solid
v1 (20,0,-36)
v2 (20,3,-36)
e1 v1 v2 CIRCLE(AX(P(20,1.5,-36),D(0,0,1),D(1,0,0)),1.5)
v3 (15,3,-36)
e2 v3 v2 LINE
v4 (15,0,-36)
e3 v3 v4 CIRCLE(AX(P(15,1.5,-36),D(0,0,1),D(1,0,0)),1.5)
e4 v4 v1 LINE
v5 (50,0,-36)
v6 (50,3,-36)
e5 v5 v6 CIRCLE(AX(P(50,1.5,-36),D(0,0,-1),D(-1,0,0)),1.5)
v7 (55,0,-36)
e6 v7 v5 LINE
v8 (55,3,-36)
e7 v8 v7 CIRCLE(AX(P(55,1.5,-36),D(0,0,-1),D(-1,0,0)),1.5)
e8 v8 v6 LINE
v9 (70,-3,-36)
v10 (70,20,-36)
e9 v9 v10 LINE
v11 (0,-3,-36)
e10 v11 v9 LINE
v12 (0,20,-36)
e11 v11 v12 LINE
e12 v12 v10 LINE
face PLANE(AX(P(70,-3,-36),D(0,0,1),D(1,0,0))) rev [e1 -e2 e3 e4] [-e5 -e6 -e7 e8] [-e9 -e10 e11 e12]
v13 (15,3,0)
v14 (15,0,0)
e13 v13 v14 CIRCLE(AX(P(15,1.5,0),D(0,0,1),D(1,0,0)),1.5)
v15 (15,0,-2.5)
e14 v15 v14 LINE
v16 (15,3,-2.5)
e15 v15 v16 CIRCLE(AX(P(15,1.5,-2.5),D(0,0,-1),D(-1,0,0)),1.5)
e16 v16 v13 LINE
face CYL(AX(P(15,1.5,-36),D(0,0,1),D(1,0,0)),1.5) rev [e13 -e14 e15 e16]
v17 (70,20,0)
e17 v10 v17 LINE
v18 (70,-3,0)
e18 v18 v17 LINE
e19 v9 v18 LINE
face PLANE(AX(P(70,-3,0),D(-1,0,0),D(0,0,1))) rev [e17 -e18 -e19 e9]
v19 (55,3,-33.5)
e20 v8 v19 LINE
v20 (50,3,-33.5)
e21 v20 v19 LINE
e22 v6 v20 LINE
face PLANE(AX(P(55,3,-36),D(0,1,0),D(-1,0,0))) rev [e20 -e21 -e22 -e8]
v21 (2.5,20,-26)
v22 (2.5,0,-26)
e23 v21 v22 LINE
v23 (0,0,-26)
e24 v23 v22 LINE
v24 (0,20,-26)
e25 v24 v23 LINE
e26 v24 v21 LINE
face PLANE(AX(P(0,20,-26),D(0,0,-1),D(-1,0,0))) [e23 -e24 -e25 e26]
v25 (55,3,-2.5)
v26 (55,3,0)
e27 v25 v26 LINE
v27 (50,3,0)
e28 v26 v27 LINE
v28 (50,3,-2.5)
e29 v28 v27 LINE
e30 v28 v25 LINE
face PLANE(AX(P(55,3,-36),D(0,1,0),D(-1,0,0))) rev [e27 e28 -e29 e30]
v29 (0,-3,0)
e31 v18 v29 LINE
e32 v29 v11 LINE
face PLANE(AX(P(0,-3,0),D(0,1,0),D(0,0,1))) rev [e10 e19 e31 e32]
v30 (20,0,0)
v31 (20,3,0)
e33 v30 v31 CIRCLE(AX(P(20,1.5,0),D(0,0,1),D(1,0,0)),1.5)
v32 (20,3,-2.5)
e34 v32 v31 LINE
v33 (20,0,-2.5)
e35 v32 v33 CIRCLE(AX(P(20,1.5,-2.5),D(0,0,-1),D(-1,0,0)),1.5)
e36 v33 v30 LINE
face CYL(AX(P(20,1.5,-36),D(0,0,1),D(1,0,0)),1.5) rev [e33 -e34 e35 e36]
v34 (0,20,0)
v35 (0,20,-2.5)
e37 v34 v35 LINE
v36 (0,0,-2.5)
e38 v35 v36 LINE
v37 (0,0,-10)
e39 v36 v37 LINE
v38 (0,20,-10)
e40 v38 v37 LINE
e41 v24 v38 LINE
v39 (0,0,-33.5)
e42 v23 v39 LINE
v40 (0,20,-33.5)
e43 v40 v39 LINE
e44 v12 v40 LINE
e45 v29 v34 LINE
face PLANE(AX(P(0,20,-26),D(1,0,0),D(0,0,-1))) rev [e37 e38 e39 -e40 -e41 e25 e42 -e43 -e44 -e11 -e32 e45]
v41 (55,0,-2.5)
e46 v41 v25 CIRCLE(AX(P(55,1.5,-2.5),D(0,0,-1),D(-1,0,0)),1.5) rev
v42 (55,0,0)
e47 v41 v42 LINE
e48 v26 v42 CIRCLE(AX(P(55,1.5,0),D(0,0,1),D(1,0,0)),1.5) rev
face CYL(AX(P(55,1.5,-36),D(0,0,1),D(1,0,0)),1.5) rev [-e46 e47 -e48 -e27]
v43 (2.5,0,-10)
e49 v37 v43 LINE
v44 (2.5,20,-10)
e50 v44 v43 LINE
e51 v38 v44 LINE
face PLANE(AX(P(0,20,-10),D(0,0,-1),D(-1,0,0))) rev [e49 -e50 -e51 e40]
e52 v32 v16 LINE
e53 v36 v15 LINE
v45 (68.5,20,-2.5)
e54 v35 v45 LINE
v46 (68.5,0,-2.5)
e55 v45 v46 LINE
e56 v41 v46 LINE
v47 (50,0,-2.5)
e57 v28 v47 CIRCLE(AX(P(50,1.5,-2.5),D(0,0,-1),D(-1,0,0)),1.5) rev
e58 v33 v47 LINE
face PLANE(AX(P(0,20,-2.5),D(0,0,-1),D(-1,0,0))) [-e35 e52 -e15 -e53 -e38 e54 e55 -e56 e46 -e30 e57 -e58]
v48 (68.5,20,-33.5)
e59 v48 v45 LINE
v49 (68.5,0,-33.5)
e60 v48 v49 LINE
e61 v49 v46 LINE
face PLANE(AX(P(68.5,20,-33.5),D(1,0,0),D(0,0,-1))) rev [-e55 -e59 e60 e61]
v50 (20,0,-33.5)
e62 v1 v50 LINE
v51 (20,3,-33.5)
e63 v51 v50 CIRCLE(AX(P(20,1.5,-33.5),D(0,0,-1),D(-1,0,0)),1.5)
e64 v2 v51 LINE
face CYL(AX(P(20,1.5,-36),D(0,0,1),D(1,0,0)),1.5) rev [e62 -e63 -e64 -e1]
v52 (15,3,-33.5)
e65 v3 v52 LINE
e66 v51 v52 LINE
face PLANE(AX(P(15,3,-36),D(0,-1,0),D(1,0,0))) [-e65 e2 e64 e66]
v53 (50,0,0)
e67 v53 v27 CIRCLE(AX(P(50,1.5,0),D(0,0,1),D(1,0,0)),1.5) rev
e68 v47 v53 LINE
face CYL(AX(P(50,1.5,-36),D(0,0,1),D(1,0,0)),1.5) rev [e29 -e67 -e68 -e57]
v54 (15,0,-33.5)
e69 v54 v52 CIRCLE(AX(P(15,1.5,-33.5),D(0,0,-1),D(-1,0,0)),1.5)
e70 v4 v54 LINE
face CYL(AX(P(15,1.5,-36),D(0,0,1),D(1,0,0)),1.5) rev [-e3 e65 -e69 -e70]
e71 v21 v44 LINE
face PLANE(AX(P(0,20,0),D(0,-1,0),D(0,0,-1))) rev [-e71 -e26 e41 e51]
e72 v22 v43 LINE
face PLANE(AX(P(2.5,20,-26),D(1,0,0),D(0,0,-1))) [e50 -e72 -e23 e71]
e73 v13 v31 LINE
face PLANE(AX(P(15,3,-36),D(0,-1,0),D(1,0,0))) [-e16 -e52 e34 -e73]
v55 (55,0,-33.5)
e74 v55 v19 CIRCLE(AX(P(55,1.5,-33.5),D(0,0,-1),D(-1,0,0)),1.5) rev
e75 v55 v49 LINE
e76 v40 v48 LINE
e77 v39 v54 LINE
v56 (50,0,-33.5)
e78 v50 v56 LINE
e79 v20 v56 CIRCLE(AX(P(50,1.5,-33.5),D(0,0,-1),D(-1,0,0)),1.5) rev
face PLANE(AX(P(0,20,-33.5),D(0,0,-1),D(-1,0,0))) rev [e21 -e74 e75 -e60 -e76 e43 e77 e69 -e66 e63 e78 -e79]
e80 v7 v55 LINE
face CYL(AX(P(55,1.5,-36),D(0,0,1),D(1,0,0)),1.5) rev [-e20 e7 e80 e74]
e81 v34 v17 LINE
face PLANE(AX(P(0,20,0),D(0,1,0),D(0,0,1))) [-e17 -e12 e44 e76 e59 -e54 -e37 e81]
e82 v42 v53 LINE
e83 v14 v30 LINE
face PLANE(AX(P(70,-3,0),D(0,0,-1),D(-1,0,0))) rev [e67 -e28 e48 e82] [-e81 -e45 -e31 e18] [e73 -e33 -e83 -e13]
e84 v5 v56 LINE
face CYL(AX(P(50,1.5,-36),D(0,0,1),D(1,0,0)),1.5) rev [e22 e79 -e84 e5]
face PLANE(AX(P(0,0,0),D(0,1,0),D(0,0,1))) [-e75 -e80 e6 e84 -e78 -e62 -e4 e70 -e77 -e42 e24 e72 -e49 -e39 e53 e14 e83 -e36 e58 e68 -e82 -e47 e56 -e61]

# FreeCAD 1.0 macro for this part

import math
import FreeCAD as App
import Part
import Sketcher

V = App.Vector


def add_polygon(sketch, points):
    """Adds a closed chain of lines whose ends are joined by coincident constraints."""
    first, n = sketch.GeometryCount, len(points)
    for a, b in zip(points, points[1:] + points[:1]):
        sketch.addGeometry(Part.LineSegment(App.Vector(*a, 0), App.Vector(*b, 0)), False)
    for i in range(n):
        sketch.addConstraint(Sketcher.Constraint("Coincident", first + i, 2, first + (i + 1) % n, 1))

doc = App.newDocument("Part")
body = doc.addObject("PartDesign::Body", "Body")
body.AllowCompound = True

# Sketch on XZ plane
sketch1 = body.newObject("Sketcher::SketchObject", "Sketch")
sketch1.AttachmentSupport = (doc.getObject("XZ_Plane"), [""])
sketch1.MapMode = "FlatFace"
add_polygon(sketch1, [(70, -36), (0, -36), (0, -33.5), (68.5, -33.5), (68.5, -2.5), (0, -2.5), (0, 0), (70, 0)])  # lines 0-7
add_polygon(sketch1, [(0, -26), (0, -10), (2.5, -10), (2.5, -26)])  # lines 8-11
sketch1.addConstraint([
    Sketcher.Constraint("Horizontal", 0),
    Sketcher.Constraint("Vertical", 1),
    Sketcher.Constraint("Horizontal", 2),
    Sketcher.Constraint("Vertical", 3),
    Sketcher.Constraint("Horizontal", 4),
    Sketcher.Constraint("Vertical", 5),
    Sketcher.Constraint("Horizontal", 6),
    Sketcher.Constraint("Vertical", 7),
    Sketcher.Constraint("Vertical", 8),
    Sketcher.Constraint("Horizontal", 9),
    Sketcher.Constraint("Vertical", 10),
    Sketcher.Constraint("Horizontal", 11),
    Sketcher.Constraint("Coincident", 5, 2, -1, 1),
    Sketcher.Constraint("PointOnObject", 0, 2, -2),
    Sketcher.Constraint("PointOnObject", 8, 2, -2),
    Sketcher.Constraint("Equal", 11, 1),
    Sketcher.Constraint("Equal", 1, 5),
    Sketcher.Constraint("DistanceX", 0, 2, 0, 1, 70.0),
    Sketcher.Constraint("DistanceY", 3, 1, 3, 2, 31.0),
    Sketcher.Constraint("DistanceY", 7, 2, 7, 1, 36.0),
    Sketcher.Constraint("DistanceY", 8, 1, 8, 2, 16.0),
    Sketcher.Constraint("DistanceX", 2, 1, 2, 2, 68.5),
    Sketcher.Constraint("DistanceY", 8, 2, -1, 1, 10.0),
])
pad1 = body.newObject("PartDesign::Pad", "Pad")
pad1.Profile = sketch1
pad1.Length = 20
pad1.Reversed = True

# Sketch on XZ plane
sketch2 = body.newObject("Sketcher::SketchObject", "Sketch001")
sketch2.AttachmentSupport = (doc.getObject("XZ_Plane"), [""])
sketch2.MapMode = "FlatFace"
add_polygon(sketch2, [(0, 0), (0, -36), (70, -36), (70, 0)])  # lines 0-3
sketch2.addConstraint([
    Sketcher.Constraint("Vertical", 0),
    Sketcher.Constraint("Horizontal", 1),
    Sketcher.Constraint("Vertical", 2),
    Sketcher.Constraint("Horizontal", 3),
    Sketcher.Constraint("Coincident", 3, 2, -1, 1),
    Sketcher.Constraint("DistanceX", 1, 1, 1, 2, 70.0),
    Sketcher.Constraint("DistanceY", 0, 2, 0, 1, 36.0),
])
pad2 = body.newObject("PartDesign::Pad", "Pad001")
pad2.Profile = sketch2
pad2.Length = 3

# Sketch on XY plane
sketch3 = body.newObject("Sketcher::SketchObject", "Sketch002")
sketch3.AttachmentSupport = (doc.getObject("XY_Plane"), [""])
sketch3.MapMode = "FlatFace"
sketch3.addGeometry([
    Part.LineSegment(V(20, 3, 0), V(15, 3, 0)),  # 0
    Part.ArcOfCircle(Part.Circle(V(15, 1.5, 0), V(0, 0, 1), 1.5), math.radians(90), math.radians(270)),  # 1
    Part.LineSegment(V(15, 0, 0), V(20, 0, 0)),  # 2
    Part.ArcOfCircle(Part.Circle(V(20, 1.5, 0), V(0, 0, 1), 1.5), math.radians(-90), math.radians(90)),  # 3
    Part.LineSegment(V(55, 3, 0), V(50, 3, 0)),  # 4
    Part.ArcOfCircle(Part.Circle(V(50, 1.5, 0), V(0, 0, 1), 1.5), math.radians(90), math.radians(270)),  # 5
    Part.LineSegment(V(50, 0, 0), V(55, 0, 0)),  # 6
    Part.ArcOfCircle(Part.Circle(V(55, 1.5, 0), V(0, 0, 1), 1.5), math.radians(-90), math.radians(90)),  # 7
], False)
sketch3.addConstraint([
    Sketcher.Constraint("Tangent", 0, 2, 1, 1),
    Sketcher.Constraint("Tangent", 1, 2, 2, 1),
    Sketcher.Constraint("Tangent", 2, 2, 3, 1),
    Sketcher.Constraint("Tangent", 3, 2, 0, 1),
    Sketcher.Constraint("Tangent", 4, 2, 5, 1),
    Sketcher.Constraint("Tangent", 5, 2, 6, 1),
    Sketcher.Constraint("Tangent", 6, 2, 7, 1),
    Sketcher.Constraint("Tangent", 7, 2, 4, 1),
    Sketcher.Constraint("Horizontal", 0),
    Sketcher.Constraint("Horizontal", 2),
    Sketcher.Constraint("Horizontal", 4),
    Sketcher.Constraint("Horizontal", 6),
    Sketcher.Constraint("Equal", 3, 5),
    Sketcher.Constraint("PointOnObject", 1, 2, -1),
    Sketcher.Constraint("PointOnObject", 5, 2, -1),
    Sketcher.Constraint("Equal", 2, 4),
    Sketcher.Constraint("Radius", 1, 1.5),
    Sketcher.Constraint("DistanceX", 0, 2, 0, 1, 5.0),
    Sketcher.Constraint("DistanceX", -1, 1, 1, 3, 15.0),
    Sketcher.Constraint("DistanceX", -1, 1, 5, 3, 50.0),
])
pocket1 = body.newObject("PartDesign::Pocket", "Pocket")
pocket1.Profile = sketch3
pocket1.Type = "ThroughAll"
pocket1.Midplane = True

doc.recompute()
